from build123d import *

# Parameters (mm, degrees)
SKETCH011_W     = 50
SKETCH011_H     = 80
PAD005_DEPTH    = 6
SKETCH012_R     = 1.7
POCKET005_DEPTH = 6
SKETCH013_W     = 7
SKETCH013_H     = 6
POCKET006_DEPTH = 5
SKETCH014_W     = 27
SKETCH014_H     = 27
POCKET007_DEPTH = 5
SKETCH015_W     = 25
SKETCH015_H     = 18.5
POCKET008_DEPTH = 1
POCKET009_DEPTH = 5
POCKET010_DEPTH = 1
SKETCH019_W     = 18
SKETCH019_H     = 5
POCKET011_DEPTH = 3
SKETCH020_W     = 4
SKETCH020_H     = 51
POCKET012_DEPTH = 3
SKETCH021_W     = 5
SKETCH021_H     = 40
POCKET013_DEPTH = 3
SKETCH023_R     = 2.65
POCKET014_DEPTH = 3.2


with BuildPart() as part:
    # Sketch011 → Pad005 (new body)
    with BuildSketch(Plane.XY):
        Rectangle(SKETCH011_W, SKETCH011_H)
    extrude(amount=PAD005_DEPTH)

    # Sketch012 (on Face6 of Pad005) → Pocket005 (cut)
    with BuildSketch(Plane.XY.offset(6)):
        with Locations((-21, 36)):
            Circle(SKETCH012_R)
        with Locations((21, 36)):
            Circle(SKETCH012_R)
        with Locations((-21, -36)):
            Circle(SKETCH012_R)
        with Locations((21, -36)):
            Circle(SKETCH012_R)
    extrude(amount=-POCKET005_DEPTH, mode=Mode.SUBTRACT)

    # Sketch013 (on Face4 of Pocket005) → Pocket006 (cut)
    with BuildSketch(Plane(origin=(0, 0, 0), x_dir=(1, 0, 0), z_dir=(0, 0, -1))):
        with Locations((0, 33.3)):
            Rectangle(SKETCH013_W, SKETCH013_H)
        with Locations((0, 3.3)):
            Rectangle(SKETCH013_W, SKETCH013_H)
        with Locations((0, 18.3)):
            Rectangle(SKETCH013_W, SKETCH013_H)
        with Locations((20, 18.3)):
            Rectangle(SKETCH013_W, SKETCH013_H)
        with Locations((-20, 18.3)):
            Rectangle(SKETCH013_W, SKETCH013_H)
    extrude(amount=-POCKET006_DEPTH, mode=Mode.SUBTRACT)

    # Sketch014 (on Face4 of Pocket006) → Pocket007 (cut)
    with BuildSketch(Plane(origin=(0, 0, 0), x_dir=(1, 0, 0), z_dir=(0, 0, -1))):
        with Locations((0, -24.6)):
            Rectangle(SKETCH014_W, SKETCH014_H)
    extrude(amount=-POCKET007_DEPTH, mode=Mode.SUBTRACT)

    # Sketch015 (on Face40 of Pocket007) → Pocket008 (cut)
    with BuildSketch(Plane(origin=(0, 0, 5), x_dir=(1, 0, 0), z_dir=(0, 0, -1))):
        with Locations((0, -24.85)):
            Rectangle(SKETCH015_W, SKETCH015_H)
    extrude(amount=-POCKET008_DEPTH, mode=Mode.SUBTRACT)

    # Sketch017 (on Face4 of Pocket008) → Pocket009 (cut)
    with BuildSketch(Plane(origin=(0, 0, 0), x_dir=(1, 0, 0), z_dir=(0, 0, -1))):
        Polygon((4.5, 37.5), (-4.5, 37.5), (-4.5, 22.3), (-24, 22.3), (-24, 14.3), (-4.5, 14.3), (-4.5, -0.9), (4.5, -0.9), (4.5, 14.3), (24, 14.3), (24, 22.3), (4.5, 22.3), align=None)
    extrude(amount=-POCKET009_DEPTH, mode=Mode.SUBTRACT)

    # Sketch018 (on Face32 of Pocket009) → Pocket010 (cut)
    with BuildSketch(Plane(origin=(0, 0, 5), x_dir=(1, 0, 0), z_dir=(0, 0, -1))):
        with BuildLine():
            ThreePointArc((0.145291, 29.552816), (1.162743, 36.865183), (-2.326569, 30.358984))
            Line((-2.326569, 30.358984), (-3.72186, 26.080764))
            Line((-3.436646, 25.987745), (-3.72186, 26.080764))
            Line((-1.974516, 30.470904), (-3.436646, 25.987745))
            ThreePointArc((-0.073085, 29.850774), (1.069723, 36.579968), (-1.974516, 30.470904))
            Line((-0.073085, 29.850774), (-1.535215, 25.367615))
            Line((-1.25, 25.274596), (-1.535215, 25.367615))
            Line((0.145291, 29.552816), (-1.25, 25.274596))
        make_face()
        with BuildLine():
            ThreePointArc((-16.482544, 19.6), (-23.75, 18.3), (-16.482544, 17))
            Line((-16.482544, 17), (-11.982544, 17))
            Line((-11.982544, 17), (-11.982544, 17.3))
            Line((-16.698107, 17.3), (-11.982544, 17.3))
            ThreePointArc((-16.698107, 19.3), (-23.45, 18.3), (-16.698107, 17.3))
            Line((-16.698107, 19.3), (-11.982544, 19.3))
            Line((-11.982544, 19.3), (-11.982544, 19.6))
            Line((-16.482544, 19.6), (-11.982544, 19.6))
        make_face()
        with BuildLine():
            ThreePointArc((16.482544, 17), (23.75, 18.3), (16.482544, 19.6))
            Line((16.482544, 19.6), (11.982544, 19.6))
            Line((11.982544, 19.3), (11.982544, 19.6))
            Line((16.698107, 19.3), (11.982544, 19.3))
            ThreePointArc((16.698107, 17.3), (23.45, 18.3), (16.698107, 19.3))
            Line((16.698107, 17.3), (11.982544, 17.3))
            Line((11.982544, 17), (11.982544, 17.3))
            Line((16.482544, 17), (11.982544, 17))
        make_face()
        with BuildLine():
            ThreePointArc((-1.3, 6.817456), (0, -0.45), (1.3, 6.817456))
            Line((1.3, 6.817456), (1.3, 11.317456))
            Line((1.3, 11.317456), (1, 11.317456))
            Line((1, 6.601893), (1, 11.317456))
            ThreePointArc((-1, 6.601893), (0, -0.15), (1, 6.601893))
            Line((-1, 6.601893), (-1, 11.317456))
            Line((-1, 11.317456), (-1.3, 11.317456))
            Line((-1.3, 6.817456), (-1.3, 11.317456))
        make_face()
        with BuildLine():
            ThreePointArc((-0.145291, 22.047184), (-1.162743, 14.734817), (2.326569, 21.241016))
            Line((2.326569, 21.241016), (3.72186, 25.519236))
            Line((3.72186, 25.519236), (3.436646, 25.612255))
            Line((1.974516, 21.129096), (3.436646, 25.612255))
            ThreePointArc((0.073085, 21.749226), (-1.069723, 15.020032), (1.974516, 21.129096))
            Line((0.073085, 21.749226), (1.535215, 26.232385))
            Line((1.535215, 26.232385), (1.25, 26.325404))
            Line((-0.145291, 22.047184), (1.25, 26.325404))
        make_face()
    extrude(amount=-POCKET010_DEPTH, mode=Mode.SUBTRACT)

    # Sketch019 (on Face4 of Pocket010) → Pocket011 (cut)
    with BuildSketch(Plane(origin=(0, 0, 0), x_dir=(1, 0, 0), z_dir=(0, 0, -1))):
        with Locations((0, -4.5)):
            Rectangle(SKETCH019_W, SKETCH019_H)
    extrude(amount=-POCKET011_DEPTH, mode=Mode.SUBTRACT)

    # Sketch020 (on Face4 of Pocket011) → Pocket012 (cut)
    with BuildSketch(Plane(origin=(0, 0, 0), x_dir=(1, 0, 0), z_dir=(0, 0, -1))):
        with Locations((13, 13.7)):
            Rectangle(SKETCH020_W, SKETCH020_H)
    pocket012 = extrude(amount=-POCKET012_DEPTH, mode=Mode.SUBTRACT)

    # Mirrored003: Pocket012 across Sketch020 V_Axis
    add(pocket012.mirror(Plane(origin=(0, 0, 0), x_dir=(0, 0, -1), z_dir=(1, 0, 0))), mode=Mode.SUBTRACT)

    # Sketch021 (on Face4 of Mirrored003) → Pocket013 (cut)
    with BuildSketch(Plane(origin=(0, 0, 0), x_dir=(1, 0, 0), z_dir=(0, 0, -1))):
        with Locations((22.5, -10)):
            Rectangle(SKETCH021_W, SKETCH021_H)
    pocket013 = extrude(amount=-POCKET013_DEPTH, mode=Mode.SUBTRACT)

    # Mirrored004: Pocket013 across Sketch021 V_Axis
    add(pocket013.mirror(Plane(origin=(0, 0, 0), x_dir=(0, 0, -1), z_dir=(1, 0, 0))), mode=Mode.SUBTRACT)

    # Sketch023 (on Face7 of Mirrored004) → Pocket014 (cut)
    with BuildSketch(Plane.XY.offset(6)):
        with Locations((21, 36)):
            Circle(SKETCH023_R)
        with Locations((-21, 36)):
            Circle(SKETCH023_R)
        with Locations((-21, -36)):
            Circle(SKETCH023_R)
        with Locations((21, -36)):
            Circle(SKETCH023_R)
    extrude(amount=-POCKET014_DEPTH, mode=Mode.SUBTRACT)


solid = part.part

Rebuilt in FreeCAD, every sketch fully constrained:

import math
import FreeCAD as App
import Part
import Sketcher
from FreeCAD import Vector
Q = App.Units.Quantity

doc = App.newDocument("Part")
body = doc.addObject("PartDesign::Body", "Body")

# Sketch on XY plane
sketch1 = body.newObject("Sketcher::SketchObject", "Sketch")
sketch1.AttachmentSupport = (doc.getObject("XY_Plane"), [""])
sketch1.MapMode = "FlatFace"
sketch1.addGeometry(Part.LineSegment(Vector(-25, 40, 0), Vector(-25, -40, 0)), False)
sketch1.addGeometry(Part.LineSegment(Vector(-25, -40, 0), Vector(25, -40, 0)), False)
sketch1.addGeometry(Part.LineSegment(Vector(25, -40, 0), Vector(25, 40, 0)), False)
sketch1.addGeometry(Part.LineSegment(Vector(25, 40, 0), Vector(-25, 40, 0)), False)
sketch1.addConstraint(Sketcher.Constraint("Coincident", 0, 2, 1, 1))
sketch1.addConstraint(Sketcher.Constraint("Coincident", 1, 2, 2, 1))
sketch1.addConstraint(Sketcher.Constraint("Coincident", 2, 2, 3, 1))
sketch1.addConstraint(Sketcher.Constraint("Coincident", 3, 2, 0, 1))
sketch1.addConstraint(Sketcher.Constraint("Vertical", 0))
sketch1.addConstraint(Sketcher.Constraint("Horizontal", 1))
sketch1.addConstraint(Sketcher.Constraint("Vertical", 2))
sketch1.addConstraint(Sketcher.Constraint("Horizontal", 3))
sketch1.addConstraint(Sketcher.Constraint("Symmetric", 0, 2, 2, 2, -1, 1))
sketch1.addConstraint(Sketcher.Constraint("DistanceX", 1, 1, 1, 2, Q("50 mm")))
sketch1.addConstraint(Sketcher.Constraint("DistanceY", 0, 2, 0, 1, Q("80 mm")))
pad1 = body.newObject("PartDesign::Pad", "Pad")
pad1.Profile = sketch1
pad1.Length = 6

# Sketch on XY plane
sketch2 = body.newObject("Sketcher::SketchObject", "Sketch001")
sketch2.AttachmentSupport = (doc.getObject("XY_Plane"), [""])
sketch2.MapMode = "FlatFace"
sketch2.AttachmentOffset = App.Placement(Vector(0, 0, 6), App.Rotation())
sketch2.addGeometry(Part.Circle(Vector(-21, 36, 0), Vector(0, 0, 1), 1.7), False)
sketch2.addGeometry(Part.Circle(Vector(21, 36, 0), Vector(0, 0, 1), 1.7), False)
sketch2.addGeometry(Part.Circle(Vector(-21, -36, 0), Vector(0, 0, 1), 1.7), False)
sketch2.addGeometry(Part.Circle(Vector(21, -36, 0), Vector(0, 0, 1), 1.7), False)
sketch2.addConstraint(Sketcher.Constraint("Equal", 0, 1))
sketch2.addConstraint(Sketcher.Constraint("Equal", 1, 2))
sketch2.addConstraint(Sketcher.Constraint("Equal", 2, 3))
sketch2.addConstraint(Sketcher.Constraint("Symmetric", 1, 3, 2, 3, -1, 1))
sketch2.addConstraint(Sketcher.Constraint("Symmetric", 0, 3, 3, 3, -1, 1))
sketch2.addConstraint(Sketcher.Constraint("Symmetric", 0, 3, 1, 3, -2))
sketch2.addConstraint(Sketcher.Constraint("Diameter", 0, Q("3.4 mm")))
sketch2.addConstraint(Sketcher.Constraint("DistanceX", 0, 3, -1, 1, Q("21 mm")))
sketch2.addConstraint(Sketcher.Constraint("DistanceY", -1, 1, 0, 3, Q("36 mm")))
pocket1 = body.newObject("PartDesign::Pocket", "Pocket")
pocket1.Profile = sketch2
pocket1.Length = 6

# Sketch on XY plane
sketch3 = body.newObject("Sketcher::SketchObject", "Sketch002")
sketch3.AttachmentSupport = (doc.getObject("XY_Plane"), [""])
sketch3.MapMode = "FlatFace"
sketch3.addGeometry(Part.LineSegment(Vector(-3.5, -36.3, 0), Vector(-3.5, -30.3, 0)), False)
sketch3.addGeometry(Part.LineSegment(Vector(-3.5, -30.3, 0), Vector(3.5, -30.3, 0)), False)
sketch3.addGeometry(Part.LineSegment(Vector(3.5, -30.3, 0), Vector(3.5, -36.3, 0)), False)
sketch3.addGeometry(Part.LineSegment(Vector(3.5, -36.3, 0), Vector(-3.5, -36.3, 0)), False)
sketch3.addGeometry(Part.LineSegment(Vector(-3.5, -6.3, 0), Vector(-3.5, -0.3, 0)), False)
sketch3.addGeometry(Part.LineSegment(Vector(-3.5, -0.3, 0), Vector(3.5, -0.3, 0)), False)
sketch3.addGeometry(Part.LineSegment(Vector(3.5, -0.3, 0), Vector(3.5, -6.3, 0)), False)
sketch3.addGeometry(Part.LineSegment(Vector(3.5, -6.3, 0), Vector(-3.5, -6.3, 0)), False)
sketch3.addGeometry(Part.LineSegment(Vector(-3.5, -21.3, 0), Vector(-3.5, -15.3, 0)), False)
sketch3.addGeometry(Part.LineSegment(Vector(-3.5, -15.3, 0), Vector(3.5, -15.3, 0)), False)
sketch3.addGeometry(Part.LineSegment(Vector(3.5, -15.3, 0), Vector(3.5, -21.3, 0)), False)
sketch3.addGeometry(Part.LineSegment(Vector(3.5, -21.3, 0), Vector(-3.5, -21.3, 0)), False)
sketch3.addGeometry(Part.LineSegment(Vector(16.5, -21.3, 0), Vector(16.5, -15.3, 0)), False)
sketch3.addGeometry(Part.LineSegment(Vector(16.5, -15.3, 0), Vector(23.5, -15.3, 0)), False)
sketch3.addGeometry(Part.LineSegment(Vector(23.5, -15.3, 0), Vector(23.5, -21.3, 0)), False)
sketch3.addGeometry(Part.LineSegment(Vector(23.5, -21.3, 0), Vector(16.5, -21.3, 0)), False)
sketch3.addGeometry(Part.LineSegment(Vector(-23.5, -21.3, 0), Vector(-23.5, -15.3, 0)), False)
sketch3.addGeometry(Part.LineSegment(Vector(-23.5, -15.3, 0), Vector(-16.5, -15.3, 0)), False)
sketch3.addGeometry(Part.LineSegment(Vector(-16.5, -15.3, 0), Vector(-16.5, -21.3, 0)), False)
sketch3.addGeometry(Part.LineSegment(Vector(-16.5, -21.3, 0), Vector(-23.5, -21.3, 0)), False)
sketch3.addConstraint(Sketcher.Constraint("Coincident", 0, 2, 1, 1))
sketch3.addConstraint(Sketcher.Constraint("Coincident", 1, 2, 2, 1))
sketch3.addConstraint(Sketcher.Constraint("Coincident", 2, 2, 3, 1))
sketch3.addConstraint(Sketcher.Constraint("Coincident", 3, 2, 0, 1))
sketch3.addConstraint(Sketcher.Constraint("Coincident", 4, 2, 5, 1))
sketch3.addConstraint(Sketcher.Constraint("Coincident", 5, 2, 6, 1))
sketch3.addConstraint(Sketcher.Constraint("Coincident", 6, 2, 7, 1))
sketch3.addConstraint(Sketcher.Constraint("Coincident", 7, 2, 4, 1))
sketch3.addConstraint(Sketcher.Constraint("Coincident", 8, 2, 9, 1))
sketch3.addConstraint(Sketcher.Constraint("Coincident", 9, 2, 10, 1))
sketch3.addConstraint(Sketcher.Constraint("Coincident", 10, 2, 11, 1))
sketch3.addConstraint(Sketcher.Constraint("Coincident", 11, 2, 8, 1))
sketch3.addConstraint(Sketcher.Constraint("Coincident", 12, 2, 13, 1))
sketch3.addConstraint(Sketcher.Constraint("Coincident", 13, 2, 14, 1))
sketch3.addConstraint(Sketcher.Constraint("Coincident", 14, 2, 15, 1))
sketch3.addConstraint(Sketcher.Constraint("Coincident", 15, 2, 12, 1))
sketch3.addConstraint(Sketcher.Constraint("Coincident", 16, 2, 17, 1))
sketch3.addConstraint(Sketcher.Constraint("Coincident", 17, 2, 18, 1))
sketch3.addConstraint(Sketcher.Constraint("Coincident", 18, 2, 19, 1))
sketch3.addConstraint(Sketcher.Constraint("Coincident", 19, 2, 16, 1))
sketch3.addConstraint(Sketcher.Constraint("Vertical", 0))
sketch3.addConstraint(Sketcher.Constraint("Horizontal", 1))
sketch3.addConstraint(Sketcher.Constraint("Vertical", 2))
sketch3.addConstraint(Sketcher.Constraint("Horizontal", 3))
sketch3.addConstraint(Sketcher.Constraint("Vertical", 4))
sketch3.addConstraint(Sketcher.Constraint("Horizontal", 5))
sketch3.addConstraint(Sketcher.Constraint("Vertical", 6))
sketch3.addConstraint(Sketcher.Constraint("Horizontal", 7))
sketch3.addConstraint(Sketcher.Constraint("Vertical", 8))
sketch3.addConstraint(Sketcher.Constraint("Horizontal", 9))
sketch3.addConstraint(Sketcher.Constraint("Vertical", 10))
sketch3.addConstraint(Sketcher.Constraint("Horizontal", 11))
sketch3.addConstraint(Sketcher.Constraint("Vertical", 12))
sketch3.addConstraint(Sketcher.Constraint("Horizontal", 13))
sketch3.addConstraint(Sketcher.Constraint("Vertical", 14))
sketch3.addConstraint(Sketcher.Constraint("Horizontal", 15))
sketch3.addConstraint(Sketcher.Constraint("Vertical", 16))
sketch3.addConstraint(Sketcher.Constraint("Horizontal", 17))
sketch3.addConstraint(Sketcher.Constraint("Vertical", 18))
sketch3.addConstraint(Sketcher.Constraint("Horizontal", 19))
sketch3.addConstraint(Sketcher.Constraint("Symmetric", 13, 2, 16, 2, -2))
sketch3.addConstraint(Sketcher.Constraint("Symmetric", 15, 2, 18, 2, -2))
sketch3.addConstraint(Sketcher.Constraint("Horizontal", 9, 2, 12, 2))
sketch3.addConstraint(Sketcher.Constraint("Horizontal", 11, 2, 14, 2))
sketch3.addConstraint(Sketcher.Constraint("Vertical", 3, 2, 4, 2))
sketch3.addConstraint(Sketcher.Constraint("Vertical", 2, 2, 5, 2))
sketch3.addConstraint(Sketcher.Constraint("Vertical", 7, 2, 8, 2))
sketch3.addConstraint(Sketcher.Constraint("Vertical", 6, 2, 9, 2))
sketch3.addConstraint(Sketcher.Constraint("Equal", 11, 13))
sketch3.addConstraint(Sketcher.Constraint("Equal", 2, 4))
sketch3.addConstraint(Sketcher.Constraint("Equal", 6, 8))
sketch3.addConstraint(Sketcher.Constraint("DistanceX", 1, 1, 1, 2, Q("7 mm")))
sketch3.addConstraint(Sketcher.Constraint("DistanceY", 0, 1, 0, 2, Q("6 mm")))
sketch3.addConstraint(Sketcher.Constraint("DistanceY", 0, 2, 4, 2, Q("30 mm")))
sketch3.addConstraint(Sketcher.Constraint("DistanceY", 8, 2, 7, 2, Q("9 mm")))
sketch3.addConstraint(Sketcher.Constraint("DistanceX", 9, 2, 12, 2, Q("13 mm")))
sketch3.addConstraint(Sketcher.Constraint("DistanceX", 16, 2, 8, 2, Q("20 mm")))
sketch3.addConstraint(Sketcher.Constraint("DistanceY", 0, 2, -1, 1, Q("30.3 mm")))
pocket2 = body.newObject("PartDesign::Pocket", "Pocket001")
pocket2.Profile = sketch3
pocket2.Length = 5
pocket2.Reversed = True

# Sketch on XY plane
sketch4 = body.newObject("Sketcher::SketchObject", "Sketch003")
sketch4.AttachmentSupport = (doc.getObject("XY_Plane"), [""])
sketch4.MapMode = "FlatFace"
sketch4.addGeometry(Part.LineSegment(Vector(-13.5, 11.1, 0), Vector(-13.5, 38.1, 0)), False)
sketch4.addGeometry(Part.LineSegment(Vector(-13.5, 38.1, 0), Vector(13.5, 38.1, 0)), False)
sketch4.addGeometry(Part.LineSegment(Vector(13.5, 38.1, 0), Vector(13.5, 11.1, 0)), False)
sketch4.addGeometry(Part.LineSegment(Vector(13.5, 11.1, 0), Vector(-13.5, 11.1, 0)), False)
sketch4.addConstraint(Sketcher.Constraint("Coincident", 0, 2, 1, 1))
sketch4.addConstraint(Sketcher.Constraint("Coincident", 1, 2, 2, 1))
sketch4.addConstraint(Sketcher.Constraint("Coincident", 2, 2, 3, 1))
sketch4.addConstraint(Sketcher.Constraint("Coincident", 3, 2, 0, 1))
sketch4.addConstraint(Sketcher.Constraint("Vertical", 0))
sketch4.addConstraint(Sketcher.Constraint("Horizontal", 1))
sketch4.addConstraint(Sketcher.Constraint("Vertical", 2))
sketch4.addConstraint(Sketcher.Constraint("Horizontal", 3))
sketch4.addConstraint(Sketcher.Constraint("Equal", 3, 0))
sketch4.addConstraint(Sketcher.Constraint("DistanceX", 1, 1, 1, 2, Q("27 mm")))
sketch4.addConstraint(Sketcher.Constraint("DistanceX", 0, 2, -1, 1, Q("13.5 mm")))
sketch4.addConstraint(Sketcher.Constraint("DistanceY", -1, 1, 0, 2, Q("38.1 mm")))
pocket3 = body.newObject("PartDesign::Pocket", "Pocket002")
pocket3.Profile = sketch4
pocket3.Length = 5
pocket3.Reversed = True

# Sketch on XY plane
sketch5 = body.newObject("Sketcher::SketchObject", "Sketch004")
sketch5.AttachmentSupport = (doc.getObject("XY_Plane"), [""])
sketch5.MapMode = "FlatFace"
sketch5.AttachmentOffset = App.Placement(Vector(0, 0, 5), App.Rotation())
sketch5.addGeometry(Part.LineSegment(Vector(-12.5, 15.6, 0), Vector(-12.5, 34.1, 0)), False)
sketch5.addGeometry(Part.LineSegment(Vector(-12.5, 34.1, 0), Vector(12.5, 34.1, 0)), False)
sketch5.addGeometry(Part.LineSegment(Vector(12.5, 34.1, 0), Vector(12.5, 15.6, 0)), False)
sketch5.addGeometry(Part.LineSegment(Vector(12.5, 15.6, 0), Vector(-12.5, 15.6, 0)), False)
sketch5.addConstraint(Sketcher.Constraint("Coincident", 0, 2, 1, 1))
sketch5.addConstraint(Sketcher.Constraint("Coincident", 1, 2, 2, 1))
sketch5.addConstraint(Sketcher.Constraint("Coincident", 2, 2, 3, 1))
sketch5.addConstraint(Sketcher.Constraint("Coincident", 3, 2, 0, 1))
sketch5.addConstraint(Sketcher.Constraint("Vertical", 0))
sketch5.addConstraint(Sketcher.Constraint("Horizontal", 1))
sketch5.addConstraint(Sketcher.Constraint("Vertical", 2))
sketch5.addConstraint(Sketcher.Constraint("Horizontal", 3))
sketch5.addConstraint(Sketcher.Constraint("DistanceX", 1, 1, 1, 2, Q("25 mm")))
sketch5.addConstraint(Sketcher.Constraint("DistanceY", 0, 1, 0, 2, Q("18.5 mm")))
sketch5.addConstraint(Sketcher.Constraint("DistanceX", 0, 2, -1, 1, Q("12.5 mm")))
sketch5.addConstraint(Sketcher.Constraint("DistanceY", -1, 1, 0, 2, Q("34.1 mm")))
pocket4 = body.newObject("PartDesign::Pocket", "Pocket003")
pocket4.Profile = sketch5
pocket4.Length = 1
pocket4.Reversed = True

# Sketch on XY plane
sketch6 = body.newObject("Sketcher::SketchObject", "Sketch005")
sketch6.AttachmentSupport = (doc.getObject("XY_Plane"), [""])
sketch6.MapMode = "FlatFace"
sketch6.addGeometry(Part.LineSegment(Vector(4.5, -37.5, 0), Vector(-4.5, -37.5, 0)), False)
sketch6.addGeometry(Part.LineSegment(Vector(-4.5, -37.5, 0), Vector(-4.5, -22.3, 0)), False)
sketch6.addGeometry(Part.LineSegment(Vector(-4.5, -22.3, 0), Vector(-24, -22.3, 0)), False)
sketch6.addGeometry(Part.LineSegment(Vector(-24, -22.3, 0), Vector(-24, -14.3, 0)), False)
sketch6.addGeometry(Part.LineSegment(Vector(-24, -14.3, 0), Vector(-4.5, -14.3, 0)), False)
sketch6.addGeometry(Part.LineSegment(Vector(-4.5, -14.3, 0), Vector(-4.5, 0.9, 0)), False)
sketch6.addGeometry(Part.LineSegment(Vector(-4.5, 0.9, 0), Vector(4.5, 0.9, 0)), False)
sketch6.addGeometry(Part.LineSegment(Vector(4.5, 0.9, 0), Vector(4.5, -14.3, 0)), False)
sketch6.addGeometry(Part.LineSegment(Vector(4.5, -14.3, 0), Vector(24, -14.3, 0)), False)
sketch6.addGeometry(Part.LineSegment(Vector(24, -14.3, 0), Vector(24, -22.3, 0)), False)
sketch6.addGeometry(Part.LineSegment(Vector(24, -22.3, 0), Vector(4.5, -22.3, 0)), False)
sketch6.addGeometry(Part.LineSegment(Vector(4.5, -22.3, 0), Vector(4.5, -37.5, 0)), False)
sketch6.addConstraint(Sketcher.Constraint("Coincident", 0, 2, 1, 1))
sketch6.addConstraint(Sketcher.Constraint("Coincident", 1, 2, 2, 1))
sketch6.addConstraint(Sketcher.Constraint("Coincident", 2, 2, 3, 1))
sketch6.addConstraint(Sketcher.Constraint("Coincident", 3, 2, 4, 1))
sketch6.addConstraint(Sketcher.Constraint("Coincident", 4, 2, 5, 1))
sketch6.addConstraint(Sketcher.Constraint("Coincident", 5, 2, 6, 1))
sketch6.addConstraint(Sketcher.Constraint("Coincident", 6, 2, 7, 1))
sketch6.addConstraint(Sketcher.Constraint("Coincident", 7, 2, 8, 1))
sketch6.addConstraint(Sketcher.Constraint("Coincident", 8, 2, 9, 1))
sketch6.addConstraint(Sketcher.Constraint("Coincident", 9, 2, 10, 1))
sketch6.addConstraint(Sketcher.Constraint("Coincident", 10, 2, 11, 1))
sketch6.addConstraint(Sketcher.Constraint("Coincident", 11, 2, 0, 1))
sketch6.addConstraint(Sketcher.Constraint("Horizontal", 0))
sketch6.addConstraint(Sketcher.Constraint("Vertical", 1))
sketch6.addConstraint(Sketcher.Constraint("Horizontal", 2))
sketch6.addConstraint(Sketcher.Constraint("Vertical", 3))
sketch6.addConstraint(Sketcher.Constraint("Horizontal", 4))
sketch6.addConstraint(Sketcher.Constraint("Vertical", 5))
sketch6.addConstraint(Sketcher.Constraint("Horizontal", 6))
sketch6.addConstraint(Sketcher.Constraint("Vertical", 7))
sketch6.addConstraint(Sketcher.Constraint("Horizontal", 8))
sketch6.addConstraint(Sketcher.Constraint("Vertical", 9))
sketch6.addConstraint(Sketcher.Constraint("Horizontal", 10))
sketch6.addConstraint(Sketcher.Constraint("Vertical", 11))
sketch6.addConstraint(Sketcher.Constraint("Symmetric", 4, 2, 7, 2, -2))
sketch6.addConstraint(Sketcher.Constraint("Symmetric", 2, 2, 9, 2, -2))
sketch6.addConstraint(Sketcher.Constraint("Vertical", 1, 2, 4, 2))
sketch6.addConstraint(Sketcher.Constraint("Vertical", 7, 2, 10, 2))
sketch6.addConstraint(Sketcher.Constraint("Equal", 1, 5))
sketch6.addConstraint(Sketcher.Constraint("DistanceX", 0, 2, 0, 1, Q("9 mm")))
sketch6.addConstraint(Sketcher.Constraint("DistanceY", 3, 1, 3, 2, Q("8 mm")))
sketch6.addConstraint(Sketcher.Constraint("DistanceX", 2, 2, 2, 1, Q("19.5 mm")))
sketch6.addConstraint(Sketcher.Constraint("DistanceY", 1, 1, 1, 2, Q("15.2 mm")))
sketch6.addConstraint(Sketcher.Constraint("DistanceY", 0, 2, -1, 1, Q("37.5 mm")))
pocket5 = body.newObject("PartDesign::Pocket", "Pocket004")
pocket5.Profile = sketch6
pocket5.Length = 5
pocket5.Reversed = True

# Sketch on XY plane
sketch7 = body.newObject("Sketcher::SketchObject", "Sketch006")
sketch7.AttachmentSupport = (doc.getObject("XY_Plane"), [""])
sketch7.MapMode = "FlatFace"
sketch7.AttachmentOffset = App.Placement(Vector(0, 0, 5), App.Rotation())
sketch7.addGeometry(Part.ArcOfCircle(Part.Circle(Vector(0, -33.3, 0), Vector(0, 0, 1), 3.75), math.radians(128.346693), math.radians(447.779559)), False)
sketch7.addGeometry(Part.LineSegment(Vector(-2.326569, -30.358984, 0), Vector(-3.72186, -26.080764, 0)), False)
sketch7.addGeometry(Part.LineSegment(Vector(-3.72186, -26.080764, 0), Vector(-3.436646, -25.987745, 0)), False)
sketch7.addGeometry(Part.LineSegment(Vector(-3.436646, -25.987745, 0), Vector(-1.974516, -30.470904, 0)), False)
sketch7.addGeometry(Part.ArcOfCircle(Part.Circle(Vector(0.000001, -33.3, 0), Vector(0, 0, 1), 3.45), math.radians(124.912428), math.radians(451.213862)), False)
sketch7.addGeometry(Part.LineSegment(Vector(-0.073085, -29.850774, 0), Vector(-1.535215, -25.367615, 0)), False)
sketch7.addGeometry(Part.LineSegment(Vector(-1.535215, -25.367615, 0), Vector(-1.25, -25.274596, 0)), False)
sketch7.addGeometry(Part.LineSegment(Vector(-1.25, -25.274596, 0), Vector(0.145291, -29.552816, 0)), False)
sketch7.addGeometry(Part.ArcOfCircle(Part.Circle(Vector(-20, -18.3, 0), Vector(0, 0, 1), 3.75), math.radians(20.28357), math.radians(339.71643)), False)
sketch7.addGeometry(Part.LineSegment(Vector(-16.482544, -17, 0), Vector(-11.982544, -17, 0)), False)
sketch7.addGeometry(Part.LineSegment(Vector(-11.982544, -17, 0), Vector(-11.982544, -17.3, 0)), False)
sketch7.addGeometry(Part.LineSegment(Vector(-11.982544, -17.3, 0), Vector(-16.698107, -17.3, 0)), False)
sketch7.addGeometry(Part.ArcOfCircle(Part.Circle(Vector(-20, -18.3, 0), Vector(0, 0, 1), 3.45), math.radians(16.849281), math.radians(343.150719)), False)
sketch7.addGeometry(Part.LineSegment(Vector(-16.698107, -19.3, 0), Vector(-11.982544, -19.3, 0)), False)
sketch7.addGeometry(Part.LineSegment(Vector(-11.982544, -19.3, 0), Vector(-11.982544, -19.6, 0)), False)
sketch7.addGeometry(Part.LineSegment(Vector(-11.982544, -19.6, 0), Vector(-16.482544, -19.6, 0)), False)
sketch7.addGeometry(Part.ArcOfCircle(Part.Circle(Vector(20, -18.3, 0), Vector(0, 0, 1), 3.75), math.radians(-159.71643), math.radians(159.71643)), False)
sketch7.addGeometry(Part.LineSegment(Vector(16.482544, -19.6, 0), Vector(11.982544, -19.6, 0)), False)
sketch7.addGeometry(Part.LineSegment(Vector(11.982544, -19.6, 0), Vector(11.982544, -19.3, 0)), False)
sketch7.addGeometry(Part.LineSegment(Vector(11.982544, -19.3, 0), Vector(16.698107, -19.3, 0)), False)
sketch7.addGeometry(Part.ArcOfCircle(Part.Circle(Vector(20, -18.3, 0), Vector(0, 0, 1), 3.45), math.radians(-163.150719), math.radians(163.150719)), False)
sketch7.addGeometry(Part.LineSegment(Vector(16.698107, -17.3, 0), Vector(11.982544, -17.3, 0)), False)
sketch7.addGeometry(Part.LineSegment(Vector(11.982544, -17.3, 0), Vector(11.982544, -17, 0)), False)
sketch7.addGeometry(Part.LineSegment(Vector(11.982544, -17, 0), Vector(16.482544, -17, 0)), False)
sketch7.addGeometry(Part.ArcOfCircle(Part.Circle(Vector(0, -3.3, 0), Vector(0, 0, 1), 3.75), math.radians(-69.71643), math.radians(249.71643)), False)
sketch7.addGeometry(Part.LineSegment(Vector(1.3, -6.817456, 0), Vector(1.3, -11.317456, 0)), False)
sketch7.addGeometry(Part.LineSegment(Vector(1.3, -11.317456, 0), Vector(1, -11.317456, 0)), False)
sketch7.addGeometry(Part.LineSegment(Vector(1, -11.317456, 0), Vector(1, -6.601893, 0)), False)
sketch7.addGeometry(Part.ArcOfCircle(Part.Circle(Vector(0, -3.3, 0), Vector(0, 0, 1), 3.45), math.radians(-73.150719), math.radians(253.150719)), False)
sketch7.addGeometry(Part.LineSegment(Vector(-1, -6.601893, 0), Vector(-1, -11.317456, 0)), False)
sketch7.addGeometry(Part.LineSegment(Vector(-1, -11.317456, 0), Vector(-1.3, -11.317456, 0)), False)
sketch7.addGeometry(Part.LineSegment(Vector(-1.3, -11.317456, 0), Vector(-1.3, -6.817456, 0)), False)
sketch7.addGeometry(Part.ArcOfCircle(Part.Circle(Vector(0, -18.3, 0), Vector(0, 0, 1), 3.75), math.radians(-51.653307), math.radians(267.779559)), False)
sketch7.addGeometry(Part.LineSegment(Vector(2.326569, -21.241016, 0), Vector(3.72186, -25.519236, 0)), False)
sketch7.addGeometry(Part.LineSegment(Vector(3.72186, -25.519236, 0), Vector(3.436646, -25.612255, 0)), False)
sketch7.addGeometry(Part.LineSegment(Vector(3.436646, -25.612255, 0), Vector(1.974516, -21.129096, 0)), False)
sketch7.addGeometry(Part.ArcOfCircle(Part.Circle(Vector(-0.000001, -18.3, 0), Vector(0, 0, 1), 3.45), math.radians(-55.087572), math.radians(271.213862)), False)
sketch7.addGeometry(Part.LineSegment(Vector(0.073085, -21.749226, 0), Vector(1.535215, -26.232385, 0)), False)
sketch7.addGeometry(Part.LineSegment(Vector(1.535215, -26.232385, 0), Vector(1.25, -26.325404, 0)), False)
sketch7.addGeometry(Part.LineSegment(Vector(1.25, -26.325404, 0), Vector(-0.145291, -22.047184, 0)), False)
sketch7.addConstraint(Sketcher.Constraint("Coincident", 0, 1, 1, 1))
sketch7.addConstraint(Sketcher.Constraint("Coincident", 1, 2, 2, 1))
sketch7.addConstraint(Sketcher.Constraint("Coincident", 2, 2, 3, 1))
sketch7.addConstraint(Sketcher.Constraint("Coincident", 3, 2, 4, 1))
sketch7.addConstraint(Sketcher.Constraint("Coincident", 4, 2, 5, 1))
sketch7.addConstraint(Sketcher.Constraint("Coincident", 5, 2, 6, 1))
sketch7.addConstraint(Sketcher.Constraint("Coincident", 6, 2, 7, 1))
sketch7.addConstraint(Sketcher.Constraint("Coincident", 7, 2, 0, 2))
sketch7.addConstraint(Sketcher.Constraint("Coincident", 8, 1, 9, 1))
sketch7.addConstraint(Sketcher.Constraint("Coincident", 9, 2, 10, 1))
sketch7.addConstraint(Sketcher.Constraint("Coincident", 10, 2, 11, 1))
sketch7.addConstraint(Sketcher.Constraint("Coincident", 11, 2, 12, 1))
sketch7.addConstraint(Sketcher.Constraint("Coincident", 12, 2, 13, 1))
sketch7.addConstraint(Sketcher.Constraint("Coincident", 13, 2, 14, 1))
sketch7.addConstraint(Sketcher.Constraint("Coincident", 14, 2, 15, 1))
sketch7.addConstraint(Sketcher.Constraint("Coincident", 15, 2, 8, 2))
sketch7.addConstraint(Sketcher.Constraint("Coincident", 16, 1, 17, 1))
sketch7.addConstraint(Sketcher.Constraint("Coincident", 17, 2, 18, 1))
sketch7.addConstraint(Sketcher.Constraint("Coincident", 18, 2, 19, 1))
sketch7.addConstraint(Sketcher.Constraint("Coincident", 19, 2, 20, 1))
sketch7.addConstraint(Sketcher.Constraint("Coincident", 20, 2, 21, 1))
sketch7.addConstraint(Sketcher.Constraint("Coincident", 21, 2, 22, 1))
sketch7.addConstraint(Sketcher.Constraint("Coincident", 22, 2, 23, 1))
sketch7.addConstraint(Sketcher.Constraint("Coincident", 23, 2, 16, 2))
sketch7.addConstraint(Sketcher.Constraint("Coincident", 24, 1, 25, 1))
sketch7.addConstraint(Sketcher.Constraint("Coincident", 25, 2, 26, 1))
sketch7.addConstraint(Sketcher.Constraint("Coincident", 26, 2, 27, 1))
sketch7.addConstraint(Sketcher.Constraint("Coincident", 27, 2, 28, 1))
sketch7.addConstraint(Sketcher.Constraint("Coincident", 28, 2, 29, 1))
sketch7.addConstraint(Sketcher.Constraint("Coincident", 29, 2, 30, 1))
sketch7.addConstraint(Sketcher.Constraint("Coincident", 30, 2, 31, 1))
sketch7.addConstraint(Sketcher.Constraint("Coincident", 31, 2, 24, 2))
sketch7.addConstraint(Sketcher.Constraint("Coincident", 32, 1, 33, 1))
sketch7.addConstraint(Sketcher.Constraint("Coincident", 33, 2, 34, 1))
sketch7.addConstraint(Sketcher.Constraint("Coincident", 34, 2, 35, 1))
sketch7.addConstraint(Sketcher.Constraint("Coincident", 35, 2, 36, 1))
sketch7.addConstraint(Sketcher.Constraint("Coincident", 36, 2, 37, 1))
sketch7.addConstraint(Sketcher.Constraint("Coincident", 37, 2, 38, 1))
sketch7.addConstraint(Sketcher.Constraint("Coincident", 38, 2, 39, 1))
sketch7.addConstraint(Sketcher.Constraint("Coincident", 39, 2, 32, 2))
sketch7.addConstraint(Sketcher.Constraint("Horizontal", 9))
sketch7.addConstraint(Sketcher.Constraint("Vertical", 10))
sketch7.addConstraint(Sketcher.Constraint("Horizontal", 11))
sketch7.addConstraint(Sketcher.Constraint("Horizontal", 13))
sketch7.addConstraint(Sketcher.Constraint("Vertical", 14))
sketch7.addConstraint(Sketcher.Constraint("Horizontal", 15))
sketch7.addConstraint(Sketcher.Constraint("Horizontal", 17))
sketch7.addConstraint(Sketcher.Constraint("Vertical", 18))
sketch7.addConstraint(Sketcher.Constraint("Horizontal", 19))
sketch7.addConstraint(Sketcher.Constraint("Horizontal", 21))
sketch7.addConstraint(Sketcher.Constraint("Vertical", 22))
sketch7.addConstraint(Sketcher.Constraint("Horizontal", 23))
sketch7.addConstraint(Sketcher.Constraint("Vertical", 25))
sketch7.addConstraint(Sketcher.Constraint("Horizontal", 26))
sketch7.addConstraint(Sketcher.Constraint("Vertical", 27))
sketch7.addConstraint(Sketcher.Constraint("Vertical", 29))
sketch7.addConstraint(Sketcher.Constraint("Horizontal", 30))
sketch7.addConstraint(Sketcher.Constraint("Vertical", 31))
sketch7.addConstraint(Sketcher.Constraint("Coincident", 4, 3, 0, 3))
sketch7.addConstraint(Sketcher.Constraint("Coincident", 12, 3, 8, 3))
sketch7.addConstraint(Sketcher.Constraint("Coincident", 20, 3, 16, 3))
sketch7.addConstraint(Sketcher.Constraint("Coincident", 28, 3, 24, 3))
sketch7.addConstraint(Sketcher.Constraint("Coincident", 36, 3, 32, 3))
sketch7.addConstraint(Sketcher.Constraint("Equal", 0, 8))
sketch7.addConstraint(Sketcher.Constraint("Equal", 4, 12))
sketch7.addConstraint(Sketcher.Constraint("Equal", 8, 16))
sketch7.addConstraint(Sketcher.Constraint("Equal", 12, 20))
sketch7.addConstraint(Sketcher.Constraint("Equal", 16, 24))
sketch7.addConstraint(Sketcher.Constraint("Equal", 20, 28))
sketch7.addConstraint(Sketcher.Constraint("Equal", 24, 32))
sketch7.addConstraint(Sketcher.Constraint("Equal", 28, 36))
sketch7.addConstraint(Sketcher.Constraint("Symmetric", 8, 3, 16, 3, -2))
sketch7.addConstraint(Sketcher.Constraint("Symmetric", 14, 2, 17, 2, -2))
sketch7.addConstraint(Sketcher.Constraint("Symmetric", 10, 2, 21, 2, -2))
sketch7.addConstraint(Sketcher.Constraint("Symmetric", 27, 2, 28, 2, -2))
sketch7.addConstraint(Sketcher.Constraint("Symmetric", 25, 2, 30, 2, -2))
sketch7.addConstraint(Sketcher.Constraint("PointOnObject", 0, 3, -2))
sketch7.addConstraint(Sketcher.Constraint("PointOnObject", 32, 3, -2))
sketch7.addConstraint(Sketcher.Constraint("Perpendicular", 1, 2))
sketch7.addConstraint(Sketcher.Constraint("Perpendicular", 2, 3))
sketch7.addConstraint(Sketcher.Constraint("Parallel", 3, 5))
sketch7.addConstraint(Sketcher.Constraint("Perpendicular", 5, 6))
sketch7.addConstraint(Sketcher.Constraint("Perpendicular", 6, 7))
sketch7.addConstraint(Sketcher.Constraint("Parallel", 7, 33))
sketch7.addConstraint(Sketcher.Constraint("Perpendicular", 33, 34))
sketch7.addConstraint(Sketcher.Constraint("Perpendicular", 34, 35))
sketch7.addConstraint(Sketcher.Constraint("Parallel", 35, 37))
sketch7.addConstraint(Sketcher.Constraint("Perpendicular", 37, 38))
sketch7.addConstraint(Sketcher.Constraint("Perpendicular", 38, 39))
sketch7.addConstraint(Sketcher.Constraint("Horizontal", 20, 3, 32, 3))
sketch7.addConstraint(Sketcher.Constraint("Horizontal", 13, 2, 18, 2))
sketch7.addConstraint(Sketcher.Constraint("Horizontal", 9, 2, 22, 2))
sketch7.addConstraint(Sketcher.Constraint("Vertical", 11, 2, 12, 2))
sketch7.addConstraint(Sketcher.Constraint("Vertical", 10, 2, 13, 2))
sketch7.addConstraint(Sketcher.Constraint("Vertical", 8, 1, 15, 2))
sketch7.addConstraint(Sketcher.Constraint("Equal", 30, 10))
sketch7.addConstraint(Sketcher.Constraint("Equal", 23, 25))
sketch7.addConstraint(Sketcher.Constraint("Equal", 21, 27))
sketch7.addConstraint(Sketcher.Constraint("Equal", 3, 5))
sketch7.addConstraint(Sketcher.Constraint("Equal", 2, 6))
sketch7.addConstraint(Sketcher.Constraint("Equal", 1, 7))
sketch7.addConstraint(Sketcher.Constraint("Equal", 7, 33))
sketch7.addConstraint(Sketcher.Constraint("Equal", 6, 34))
sketch7.addConstraint(Sketcher.Constraint("Equal", 5, 35))
sketch7.addConstraint(Sketcher.Constraint("Equal", 35, 37))
sketch7.addConstraint(Sketcher.Constraint("Equal", 34, 38))
sketch7.addConstraint(Sketcher.Constraint("Equal", 33, 39))
sketch7.addConstraint(Sketcher.Constraint("Radius", 0, Q("3.75 mm")))
sketch7.addConstraint(Sketcher.Constraint("Radius", 4, Q("3.45 mm")))
sketch7.addConstraint(Sketcher.Constraint("DistanceX", 9, 1, 9, 2, Q("4.5 mm")))
sketch7.addConstraint(Sketcher.Constraint("DistanceX", 26, 2, 26, 1, Q("0.3 mm")))
sketch7.addConstraint(Sketcher.Constraint("DistanceX", 8, 3, -1, 1, Q("20 mm")))
sketch7.addConstraint(Sketcher.Constraint("DistanceY", 8, 1, -1, 1, Q("17 mm")))
sketch7.addConstraint(Sketcher.Constraint("DistanceX", -1, 1, 26, 2, Q("1 mm")))
sketch7.addConstraint(Sketcher.Constraint("DistanceY", 0, 3, 8, 3, Q("15 mm")))
sketch7.addConstraint(Sketcher.Constraint("DistanceY", 12, 3, 24, 3, Q("15 mm")))
sketch7.addConstraint(Sketcher.Constraint("Distance", 1, Q("4.5 mm")))
sketch7.addConstraint(Sketcher.Constraint("Distance", 2, Q("0.299999 mm")))
sketch7.addConstraint(Sketcher.Constraint("DistanceX", 6, 2, 38, 2, Q("2.5 mm")))
sketch7.addConstraint(Sketcher.Constraint("DistanceX", 3, 2, 5, 2, Q("0.439301 mm")))
pocket6 = body.newObject("PartDesign::Pocket", "Pocket005")
pocket6.Profile = sketch7
pocket6.Length = 1
pocket6.Reversed = True

# Sketch on XY plane
sketch8 = body.newObject("Sketcher::SketchObject", "Sketch007")
sketch8.AttachmentSupport = (doc.getObject("XY_Plane"), [""])
sketch8.MapMode = "FlatFace"
sketch8.addGeometry(Part.LineSegment(Vector(-9, 2, 0), Vector(-9, 7, 0)), False)
sketch8.addGeometry(Part.LineSegment(Vector(-9, 7, 0), Vector(9, 7, 0)), False)
sketch8.addGeometry(Part.LineSegment(Vector(9, 7, 0), Vector(9, 2, 0)), False)
sketch8.addGeometry(Part.LineSegment(Vector(9, 2, 0), Vector(-9, 2, 0)), False)
sketch8.addConstraint(Sketcher.Constraint("Coincident", 0, 2, 1, 1))
sketch8.addConstraint(Sketcher.Constraint("Coincident", 1, 2, 2, 1))
sketch8.addConstraint(Sketcher.Constraint("Coincident", 2, 2, 3, 1))
sketch8.addConstraint(Sketcher.Constraint("Coincident", 3, 2, 0, 1))
sketch8.addConstraint(Sketcher.Constraint("Vertical", 0))
sketch8.addConstraint(Sketcher.Constraint("Horizontal", 1))
sketch8.addConstraint(Sketcher.Constraint("Vertical", 2))
sketch8.addConstraint(Sketcher.Constraint("Horizontal", 3))
sketch8.addConstraint(Sketcher.Constraint("DistanceX", 1, 1, 1, 2, Q("18 mm")))
sketch8.addConstraint(Sketcher.Constraint("DistanceY", 0, 1, 0, 2, Q("5 mm")))
sketch8.addConstraint(Sketcher.Constraint("DistanceX", 0, 2, -1, 1, Q("9 mm")))
sketch8.addConstraint(Sketcher.Constraint("DistanceY", -1, 1, 0, 2, Q("7 mm")))
pocket7 = body.newObject("PartDesign::Pocket", "Pocket006")
pocket7.Profile = sketch8
pocket7.Length = 3
pocket7.Reversed = True

# Sketch on XY plane
sketch9 = body.newObject("Sketcher::SketchObject", "Sketch008")
sketch9.AttachmentSupport = (doc.getObject("XY_Plane"), [""])
sketch9.MapMode = "FlatFace"
sketch9.addGeometry(Part.LineSegment(Vector(11, -39.2, 0), Vector(11, 11.8, 0)), False)
sketch9.addGeometry(Part.LineSegment(Vector(11, 11.8, 0), Vector(15, 11.8, 0)), False)
sketch9.addGeometry(Part.LineSegment(Vector(15, 11.8, 0), Vector(15, -39.2, 0)), False)
sketch9.addGeometry(Part.LineSegment(Vector(15, -39.2, 0), Vector(11, -39.2, 0)), False)
sketch9.addConstraint(Sketcher.Constraint("Coincident", 0, 2, 1, 1))
sketch9.addConstraint(Sketcher.Constraint("Coincident", 1, 2, 2, 1))
sketch9.addConstraint(Sketcher.Constraint("Coincident", 2, 2, 3, 1))
sketch9.addConstraint(Sketcher.Constraint("Coincident", 3, 2, 0, 1))
sketch9.addConstraint(Sketcher.Constraint("Vertical", 0))
sketch9.addConstraint(Sketcher.Constraint("Horizontal", 1))
sketch9.addConstraint(Sketcher.Constraint("Vertical", 2))
sketch9.addConstraint(Sketcher.Constraint("Horizontal", 3))
sketch9.addConstraint(Sketcher.Constraint("DistanceX", 1, 1, 1, 2, Q("4 mm")))
sketch9.addConstraint(Sketcher.Constraint("DistanceY", 0, 1, 0, 2, Q("51 mm")))
sketch9.addConstraint(Sketcher.Constraint("DistanceX", -1, 1, 0, 2, Q("11 mm")))
sketch9.addConstraint(Sketcher.Constraint("DistanceY", -1, 1, 0, 2, Q("11.8 mm")))
pocket8 = body.newObject("PartDesign::Pocket", "Pocket007")
pocket8.Profile = sketch9
pocket8.Length = 3
pocket8.Reversed = True
doc.recompute()

mirrored = body.newObject("PartDesign::Mirrored", "Mirrored")
mirrored.Originals = [pocket8]
mirrored.MirrorPlane = (doc.getObject("YZ_Plane"), [""])
body.Tip = mirrored

# Sketch on XY plane
sketch10 = body.newObject("Sketcher::SketchObject", "Sketch009")
sketch10.AttachmentSupport = (doc.getObject("XY_Plane"), [""])
sketch10.MapMode = "FlatFace"
sketch10.addGeometry(Part.LineSegment(Vector(20, -10, 0), Vector(20, 30, 0)), False)
sketch10.addGeometry(Part.LineSegment(Vector(20, 30, 0), Vector(25, 30, 0)), False)
sketch10.addGeometry(Part.LineSegment(Vector(25, 30, 0), Vector(25, -10, 0)), False)
sketch10.addGeometry(Part.LineSegment(Vector(25, -10, 0), Vector(20, -10, 0)), False)
sketch10.addConstraint(Sketcher.Constraint("Coincident", 0, 2, 1, 1))
sketch10.addConstraint(Sketcher.Constraint("Coincident", 1, 2, 2, 1))
sketch10.addConstraint(Sketcher.Constraint("Coincident", 2, 2, 3, 1))
sketch10.addConstraint(Sketcher.Constraint("Coincident", 3, 2, 0, 1))
sketch10.addConstraint(Sketcher.Constraint("Vertical", 0))
sketch10.addConstraint(Sketcher.Constraint("Horizontal", 1))
sketch10.addConstraint(Sketcher.Constraint("Vertical", 2))
sketch10.addConstraint(Sketcher.Constraint("Horizontal", 3))
sketch10.addConstraint(Sketcher.Constraint("DistanceX", 1, 1, 1, 2, Q("5 mm")))
sketch10.addConstraint(Sketcher.Constraint("DistanceY", 0, 1, 0, 2, Q("40 mm")))
sketch10.addConstraint(Sketcher.Constraint("DistanceX", -1, 1, 0, 2, Q("20 mm")))
sketch10.addConstraint(Sketcher.Constraint("DistanceY", -1, 1, 0, 2, Q("30 mm")))
pocket9 = body.newObject("PartDesign::Pocket", "Pocket008")
pocket9.Profile = sketch10
pocket9.Length = 3
pocket9.Reversed = True
doc.recompute()

mirrored2 = body.newObject("PartDesign::Mirrored", "Mirrored001")
mirrored2.Originals = [pocket9]
mirrored2.MirrorPlane = (doc.getObject("YZ_Plane"), [""])
body.Tip = mirrored2

# Sketch on XY plane
sketch11 = body.newObject("Sketcher::SketchObject", "Sketch010")
sketch11.AttachmentSupport = (doc.getObject("XY_Plane"), [""])
sketch11.MapMode = "FlatFace"
sketch11.AttachmentOffset = App.Placement(Vector(0, 0, 6), App.Rotation())
sketch11.addGeometry(Part.Circle(Vector(21, 36, 0), Vector(0, 0, 1), 2.65), False)
sketch11.addGeometry(Part.Circle(Vector(-21, 36, 0), Vector(0, 0, 1), 2.65), False)
sketch11.addGeometry(Part.Circle(Vector(-21, -36, 0), Vector(0, 0, 1), 2.65), False)
sketch11.addGeometry(Part.Circle(Vector(21, -36, 0), Vector(0, 0, 1), 2.65), False)
sketch11.addConstraint(Sketcher.Constraint("Equal", 0, 1))
sketch11.addConstraint(Sketcher.Constraint("Equal", 1, 2))
sketch11.addConstraint(Sketcher.Constraint("Equal", 2, 3))
sketch11.addConstraint(Sketcher.Constraint("Symmetric", 0, 3, 2, 3, -1, 1))
sketch11.addConstraint(Sketcher.Constraint("Symmetric", 1, 3, 3, 3, -1, 1))
sketch11.addConstraint(Sketcher.Constraint("Symmetric", 0, 3, 1, 3, -2))
sketch11.addConstraint(Sketcher.Constraint("Diameter", 0, Q("5.3 mm")))
sketch11.addConstraint(Sketcher.Constraint("DistanceX", -1, 1, 0, 3, Q("21 mm")))
sketch11.addConstraint(Sketcher.Constraint("DistanceY", -1, 1, 0, 3, Q("36 mm")))
pocket10 = body.newObject("PartDesign::Pocket", "Pocket009")
pocket10.Profile = sketch11
pocket10.Length = 3.2

doc.recompute()
